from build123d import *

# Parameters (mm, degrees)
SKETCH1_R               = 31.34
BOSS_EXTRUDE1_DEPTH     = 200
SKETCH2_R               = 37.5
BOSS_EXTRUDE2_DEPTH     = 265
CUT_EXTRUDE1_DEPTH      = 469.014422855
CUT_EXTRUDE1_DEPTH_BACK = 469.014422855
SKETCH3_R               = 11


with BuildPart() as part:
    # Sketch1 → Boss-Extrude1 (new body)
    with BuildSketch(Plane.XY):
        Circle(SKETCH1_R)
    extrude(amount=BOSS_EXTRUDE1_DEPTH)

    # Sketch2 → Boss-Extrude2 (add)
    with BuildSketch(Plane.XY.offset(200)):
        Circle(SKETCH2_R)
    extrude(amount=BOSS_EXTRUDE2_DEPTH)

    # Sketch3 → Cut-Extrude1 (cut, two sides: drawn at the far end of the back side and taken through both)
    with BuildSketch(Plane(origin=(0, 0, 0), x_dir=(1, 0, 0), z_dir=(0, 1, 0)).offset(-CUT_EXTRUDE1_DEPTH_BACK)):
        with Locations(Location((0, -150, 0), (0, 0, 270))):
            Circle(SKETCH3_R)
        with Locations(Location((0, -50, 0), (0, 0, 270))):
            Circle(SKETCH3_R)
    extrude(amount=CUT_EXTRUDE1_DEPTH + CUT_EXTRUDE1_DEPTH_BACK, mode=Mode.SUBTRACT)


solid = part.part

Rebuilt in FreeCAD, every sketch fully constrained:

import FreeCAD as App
import Part
import Sketcher
from FreeCAD import Vector
Q = App.Units.Quantity

doc = App.newDocument("Part")
body = doc.addObject("PartDesign::Body", "Body")

# Sketch on XY plane
sketch1 = body.newObject("Sketcher::SketchObject", "Sketch")
sketch1.AttachmentSupport = (doc.getObject("XY_Plane"), [""])
sketch1.MapMode = "FlatFace"
sketch1.addGeometry(Part.Circle(Vector(0, 0, 0), Vector(0, 0, 1), 31), False)
sketch1.addConstraint(Sketcher.Constraint("Coincident", 0, 3, -1, 1))
sketch1.addConstraint(Sketcher.Constraint("Diameter", 0, Q("62.68 mm")))
pad1 = body.newObject("PartDesign::Pad", "Pad")
pad1.Profile = sketch1
pad1.Length = 200

# Sketch on XY plane
sketch2 = body.newObject("Sketcher::SketchObject", "Sketch001")
sketch2.AttachmentSupport = (doc.getObject("XY_Plane"), [""])
sketch2.MapMode = "FlatFace"
sketch2.AttachmentOffset = App.Placement(Vector(0, 0, 200), App.Rotation())
sketch2.addGeometry(Part.Circle(Vector(0, 0, 0), Vector(0, 0, 1), 38), False)
sketch2.addConstraint(Sketcher.Constraint("Coincident", 0, 3, -1, 1))
sketch2.addConstraint(Sketcher.Constraint("Diameter", 0, Q("75 mm")))
pad2 = body.newObject("PartDesign::Pad", "Pad001")
pad2.Profile = sketch2
pad2.Length = 265

# Sketch on XZ plane
sketch3 = body.newObject("Sketcher::SketchObject", "Sketch002")
sketch3.AttachmentSupport = (doc.getObject("XZ_Plane"), [""])
sketch3.MapMode = "FlatFace"
sketch3.addGeometry(Part.Circle(Vector(0, 150, 0), Vector(0, 0, 1), 11), False)
sketch3.addGeometry(Part.Circle(Vector(0, 50, 0), Vector(0, 0, 1), 11), False)
sketch3.addConstraint(Sketcher.Constraint("Equal", 0, 1))
sketch3.addConstraint(Sketcher.Constraint("PointOnObject", 0, 3, -2))
sketch3.addConstraint(Sketcher.Constraint("PointOnObject", 1, 3, -2))
sketch3.addConstraint(Sketcher.Constraint("Diameter", 0, Q("22 mm")))
sketch3.addConstraint(Sketcher.Constraint("DistanceY", -1, 1, 0, 3, Q("150 mm")))
sketch3.addConstraint(Sketcher.Constraint("DistanceY", -1, 1, 1, 3, Q("50 mm")))
pocket1 = body.newObject("PartDesign::Pocket", "Pocket")
pocket1.Profile = sketch3
pocket1.Type = "ThroughAll"
pocket1.Midplane = True

doc.recompute()
